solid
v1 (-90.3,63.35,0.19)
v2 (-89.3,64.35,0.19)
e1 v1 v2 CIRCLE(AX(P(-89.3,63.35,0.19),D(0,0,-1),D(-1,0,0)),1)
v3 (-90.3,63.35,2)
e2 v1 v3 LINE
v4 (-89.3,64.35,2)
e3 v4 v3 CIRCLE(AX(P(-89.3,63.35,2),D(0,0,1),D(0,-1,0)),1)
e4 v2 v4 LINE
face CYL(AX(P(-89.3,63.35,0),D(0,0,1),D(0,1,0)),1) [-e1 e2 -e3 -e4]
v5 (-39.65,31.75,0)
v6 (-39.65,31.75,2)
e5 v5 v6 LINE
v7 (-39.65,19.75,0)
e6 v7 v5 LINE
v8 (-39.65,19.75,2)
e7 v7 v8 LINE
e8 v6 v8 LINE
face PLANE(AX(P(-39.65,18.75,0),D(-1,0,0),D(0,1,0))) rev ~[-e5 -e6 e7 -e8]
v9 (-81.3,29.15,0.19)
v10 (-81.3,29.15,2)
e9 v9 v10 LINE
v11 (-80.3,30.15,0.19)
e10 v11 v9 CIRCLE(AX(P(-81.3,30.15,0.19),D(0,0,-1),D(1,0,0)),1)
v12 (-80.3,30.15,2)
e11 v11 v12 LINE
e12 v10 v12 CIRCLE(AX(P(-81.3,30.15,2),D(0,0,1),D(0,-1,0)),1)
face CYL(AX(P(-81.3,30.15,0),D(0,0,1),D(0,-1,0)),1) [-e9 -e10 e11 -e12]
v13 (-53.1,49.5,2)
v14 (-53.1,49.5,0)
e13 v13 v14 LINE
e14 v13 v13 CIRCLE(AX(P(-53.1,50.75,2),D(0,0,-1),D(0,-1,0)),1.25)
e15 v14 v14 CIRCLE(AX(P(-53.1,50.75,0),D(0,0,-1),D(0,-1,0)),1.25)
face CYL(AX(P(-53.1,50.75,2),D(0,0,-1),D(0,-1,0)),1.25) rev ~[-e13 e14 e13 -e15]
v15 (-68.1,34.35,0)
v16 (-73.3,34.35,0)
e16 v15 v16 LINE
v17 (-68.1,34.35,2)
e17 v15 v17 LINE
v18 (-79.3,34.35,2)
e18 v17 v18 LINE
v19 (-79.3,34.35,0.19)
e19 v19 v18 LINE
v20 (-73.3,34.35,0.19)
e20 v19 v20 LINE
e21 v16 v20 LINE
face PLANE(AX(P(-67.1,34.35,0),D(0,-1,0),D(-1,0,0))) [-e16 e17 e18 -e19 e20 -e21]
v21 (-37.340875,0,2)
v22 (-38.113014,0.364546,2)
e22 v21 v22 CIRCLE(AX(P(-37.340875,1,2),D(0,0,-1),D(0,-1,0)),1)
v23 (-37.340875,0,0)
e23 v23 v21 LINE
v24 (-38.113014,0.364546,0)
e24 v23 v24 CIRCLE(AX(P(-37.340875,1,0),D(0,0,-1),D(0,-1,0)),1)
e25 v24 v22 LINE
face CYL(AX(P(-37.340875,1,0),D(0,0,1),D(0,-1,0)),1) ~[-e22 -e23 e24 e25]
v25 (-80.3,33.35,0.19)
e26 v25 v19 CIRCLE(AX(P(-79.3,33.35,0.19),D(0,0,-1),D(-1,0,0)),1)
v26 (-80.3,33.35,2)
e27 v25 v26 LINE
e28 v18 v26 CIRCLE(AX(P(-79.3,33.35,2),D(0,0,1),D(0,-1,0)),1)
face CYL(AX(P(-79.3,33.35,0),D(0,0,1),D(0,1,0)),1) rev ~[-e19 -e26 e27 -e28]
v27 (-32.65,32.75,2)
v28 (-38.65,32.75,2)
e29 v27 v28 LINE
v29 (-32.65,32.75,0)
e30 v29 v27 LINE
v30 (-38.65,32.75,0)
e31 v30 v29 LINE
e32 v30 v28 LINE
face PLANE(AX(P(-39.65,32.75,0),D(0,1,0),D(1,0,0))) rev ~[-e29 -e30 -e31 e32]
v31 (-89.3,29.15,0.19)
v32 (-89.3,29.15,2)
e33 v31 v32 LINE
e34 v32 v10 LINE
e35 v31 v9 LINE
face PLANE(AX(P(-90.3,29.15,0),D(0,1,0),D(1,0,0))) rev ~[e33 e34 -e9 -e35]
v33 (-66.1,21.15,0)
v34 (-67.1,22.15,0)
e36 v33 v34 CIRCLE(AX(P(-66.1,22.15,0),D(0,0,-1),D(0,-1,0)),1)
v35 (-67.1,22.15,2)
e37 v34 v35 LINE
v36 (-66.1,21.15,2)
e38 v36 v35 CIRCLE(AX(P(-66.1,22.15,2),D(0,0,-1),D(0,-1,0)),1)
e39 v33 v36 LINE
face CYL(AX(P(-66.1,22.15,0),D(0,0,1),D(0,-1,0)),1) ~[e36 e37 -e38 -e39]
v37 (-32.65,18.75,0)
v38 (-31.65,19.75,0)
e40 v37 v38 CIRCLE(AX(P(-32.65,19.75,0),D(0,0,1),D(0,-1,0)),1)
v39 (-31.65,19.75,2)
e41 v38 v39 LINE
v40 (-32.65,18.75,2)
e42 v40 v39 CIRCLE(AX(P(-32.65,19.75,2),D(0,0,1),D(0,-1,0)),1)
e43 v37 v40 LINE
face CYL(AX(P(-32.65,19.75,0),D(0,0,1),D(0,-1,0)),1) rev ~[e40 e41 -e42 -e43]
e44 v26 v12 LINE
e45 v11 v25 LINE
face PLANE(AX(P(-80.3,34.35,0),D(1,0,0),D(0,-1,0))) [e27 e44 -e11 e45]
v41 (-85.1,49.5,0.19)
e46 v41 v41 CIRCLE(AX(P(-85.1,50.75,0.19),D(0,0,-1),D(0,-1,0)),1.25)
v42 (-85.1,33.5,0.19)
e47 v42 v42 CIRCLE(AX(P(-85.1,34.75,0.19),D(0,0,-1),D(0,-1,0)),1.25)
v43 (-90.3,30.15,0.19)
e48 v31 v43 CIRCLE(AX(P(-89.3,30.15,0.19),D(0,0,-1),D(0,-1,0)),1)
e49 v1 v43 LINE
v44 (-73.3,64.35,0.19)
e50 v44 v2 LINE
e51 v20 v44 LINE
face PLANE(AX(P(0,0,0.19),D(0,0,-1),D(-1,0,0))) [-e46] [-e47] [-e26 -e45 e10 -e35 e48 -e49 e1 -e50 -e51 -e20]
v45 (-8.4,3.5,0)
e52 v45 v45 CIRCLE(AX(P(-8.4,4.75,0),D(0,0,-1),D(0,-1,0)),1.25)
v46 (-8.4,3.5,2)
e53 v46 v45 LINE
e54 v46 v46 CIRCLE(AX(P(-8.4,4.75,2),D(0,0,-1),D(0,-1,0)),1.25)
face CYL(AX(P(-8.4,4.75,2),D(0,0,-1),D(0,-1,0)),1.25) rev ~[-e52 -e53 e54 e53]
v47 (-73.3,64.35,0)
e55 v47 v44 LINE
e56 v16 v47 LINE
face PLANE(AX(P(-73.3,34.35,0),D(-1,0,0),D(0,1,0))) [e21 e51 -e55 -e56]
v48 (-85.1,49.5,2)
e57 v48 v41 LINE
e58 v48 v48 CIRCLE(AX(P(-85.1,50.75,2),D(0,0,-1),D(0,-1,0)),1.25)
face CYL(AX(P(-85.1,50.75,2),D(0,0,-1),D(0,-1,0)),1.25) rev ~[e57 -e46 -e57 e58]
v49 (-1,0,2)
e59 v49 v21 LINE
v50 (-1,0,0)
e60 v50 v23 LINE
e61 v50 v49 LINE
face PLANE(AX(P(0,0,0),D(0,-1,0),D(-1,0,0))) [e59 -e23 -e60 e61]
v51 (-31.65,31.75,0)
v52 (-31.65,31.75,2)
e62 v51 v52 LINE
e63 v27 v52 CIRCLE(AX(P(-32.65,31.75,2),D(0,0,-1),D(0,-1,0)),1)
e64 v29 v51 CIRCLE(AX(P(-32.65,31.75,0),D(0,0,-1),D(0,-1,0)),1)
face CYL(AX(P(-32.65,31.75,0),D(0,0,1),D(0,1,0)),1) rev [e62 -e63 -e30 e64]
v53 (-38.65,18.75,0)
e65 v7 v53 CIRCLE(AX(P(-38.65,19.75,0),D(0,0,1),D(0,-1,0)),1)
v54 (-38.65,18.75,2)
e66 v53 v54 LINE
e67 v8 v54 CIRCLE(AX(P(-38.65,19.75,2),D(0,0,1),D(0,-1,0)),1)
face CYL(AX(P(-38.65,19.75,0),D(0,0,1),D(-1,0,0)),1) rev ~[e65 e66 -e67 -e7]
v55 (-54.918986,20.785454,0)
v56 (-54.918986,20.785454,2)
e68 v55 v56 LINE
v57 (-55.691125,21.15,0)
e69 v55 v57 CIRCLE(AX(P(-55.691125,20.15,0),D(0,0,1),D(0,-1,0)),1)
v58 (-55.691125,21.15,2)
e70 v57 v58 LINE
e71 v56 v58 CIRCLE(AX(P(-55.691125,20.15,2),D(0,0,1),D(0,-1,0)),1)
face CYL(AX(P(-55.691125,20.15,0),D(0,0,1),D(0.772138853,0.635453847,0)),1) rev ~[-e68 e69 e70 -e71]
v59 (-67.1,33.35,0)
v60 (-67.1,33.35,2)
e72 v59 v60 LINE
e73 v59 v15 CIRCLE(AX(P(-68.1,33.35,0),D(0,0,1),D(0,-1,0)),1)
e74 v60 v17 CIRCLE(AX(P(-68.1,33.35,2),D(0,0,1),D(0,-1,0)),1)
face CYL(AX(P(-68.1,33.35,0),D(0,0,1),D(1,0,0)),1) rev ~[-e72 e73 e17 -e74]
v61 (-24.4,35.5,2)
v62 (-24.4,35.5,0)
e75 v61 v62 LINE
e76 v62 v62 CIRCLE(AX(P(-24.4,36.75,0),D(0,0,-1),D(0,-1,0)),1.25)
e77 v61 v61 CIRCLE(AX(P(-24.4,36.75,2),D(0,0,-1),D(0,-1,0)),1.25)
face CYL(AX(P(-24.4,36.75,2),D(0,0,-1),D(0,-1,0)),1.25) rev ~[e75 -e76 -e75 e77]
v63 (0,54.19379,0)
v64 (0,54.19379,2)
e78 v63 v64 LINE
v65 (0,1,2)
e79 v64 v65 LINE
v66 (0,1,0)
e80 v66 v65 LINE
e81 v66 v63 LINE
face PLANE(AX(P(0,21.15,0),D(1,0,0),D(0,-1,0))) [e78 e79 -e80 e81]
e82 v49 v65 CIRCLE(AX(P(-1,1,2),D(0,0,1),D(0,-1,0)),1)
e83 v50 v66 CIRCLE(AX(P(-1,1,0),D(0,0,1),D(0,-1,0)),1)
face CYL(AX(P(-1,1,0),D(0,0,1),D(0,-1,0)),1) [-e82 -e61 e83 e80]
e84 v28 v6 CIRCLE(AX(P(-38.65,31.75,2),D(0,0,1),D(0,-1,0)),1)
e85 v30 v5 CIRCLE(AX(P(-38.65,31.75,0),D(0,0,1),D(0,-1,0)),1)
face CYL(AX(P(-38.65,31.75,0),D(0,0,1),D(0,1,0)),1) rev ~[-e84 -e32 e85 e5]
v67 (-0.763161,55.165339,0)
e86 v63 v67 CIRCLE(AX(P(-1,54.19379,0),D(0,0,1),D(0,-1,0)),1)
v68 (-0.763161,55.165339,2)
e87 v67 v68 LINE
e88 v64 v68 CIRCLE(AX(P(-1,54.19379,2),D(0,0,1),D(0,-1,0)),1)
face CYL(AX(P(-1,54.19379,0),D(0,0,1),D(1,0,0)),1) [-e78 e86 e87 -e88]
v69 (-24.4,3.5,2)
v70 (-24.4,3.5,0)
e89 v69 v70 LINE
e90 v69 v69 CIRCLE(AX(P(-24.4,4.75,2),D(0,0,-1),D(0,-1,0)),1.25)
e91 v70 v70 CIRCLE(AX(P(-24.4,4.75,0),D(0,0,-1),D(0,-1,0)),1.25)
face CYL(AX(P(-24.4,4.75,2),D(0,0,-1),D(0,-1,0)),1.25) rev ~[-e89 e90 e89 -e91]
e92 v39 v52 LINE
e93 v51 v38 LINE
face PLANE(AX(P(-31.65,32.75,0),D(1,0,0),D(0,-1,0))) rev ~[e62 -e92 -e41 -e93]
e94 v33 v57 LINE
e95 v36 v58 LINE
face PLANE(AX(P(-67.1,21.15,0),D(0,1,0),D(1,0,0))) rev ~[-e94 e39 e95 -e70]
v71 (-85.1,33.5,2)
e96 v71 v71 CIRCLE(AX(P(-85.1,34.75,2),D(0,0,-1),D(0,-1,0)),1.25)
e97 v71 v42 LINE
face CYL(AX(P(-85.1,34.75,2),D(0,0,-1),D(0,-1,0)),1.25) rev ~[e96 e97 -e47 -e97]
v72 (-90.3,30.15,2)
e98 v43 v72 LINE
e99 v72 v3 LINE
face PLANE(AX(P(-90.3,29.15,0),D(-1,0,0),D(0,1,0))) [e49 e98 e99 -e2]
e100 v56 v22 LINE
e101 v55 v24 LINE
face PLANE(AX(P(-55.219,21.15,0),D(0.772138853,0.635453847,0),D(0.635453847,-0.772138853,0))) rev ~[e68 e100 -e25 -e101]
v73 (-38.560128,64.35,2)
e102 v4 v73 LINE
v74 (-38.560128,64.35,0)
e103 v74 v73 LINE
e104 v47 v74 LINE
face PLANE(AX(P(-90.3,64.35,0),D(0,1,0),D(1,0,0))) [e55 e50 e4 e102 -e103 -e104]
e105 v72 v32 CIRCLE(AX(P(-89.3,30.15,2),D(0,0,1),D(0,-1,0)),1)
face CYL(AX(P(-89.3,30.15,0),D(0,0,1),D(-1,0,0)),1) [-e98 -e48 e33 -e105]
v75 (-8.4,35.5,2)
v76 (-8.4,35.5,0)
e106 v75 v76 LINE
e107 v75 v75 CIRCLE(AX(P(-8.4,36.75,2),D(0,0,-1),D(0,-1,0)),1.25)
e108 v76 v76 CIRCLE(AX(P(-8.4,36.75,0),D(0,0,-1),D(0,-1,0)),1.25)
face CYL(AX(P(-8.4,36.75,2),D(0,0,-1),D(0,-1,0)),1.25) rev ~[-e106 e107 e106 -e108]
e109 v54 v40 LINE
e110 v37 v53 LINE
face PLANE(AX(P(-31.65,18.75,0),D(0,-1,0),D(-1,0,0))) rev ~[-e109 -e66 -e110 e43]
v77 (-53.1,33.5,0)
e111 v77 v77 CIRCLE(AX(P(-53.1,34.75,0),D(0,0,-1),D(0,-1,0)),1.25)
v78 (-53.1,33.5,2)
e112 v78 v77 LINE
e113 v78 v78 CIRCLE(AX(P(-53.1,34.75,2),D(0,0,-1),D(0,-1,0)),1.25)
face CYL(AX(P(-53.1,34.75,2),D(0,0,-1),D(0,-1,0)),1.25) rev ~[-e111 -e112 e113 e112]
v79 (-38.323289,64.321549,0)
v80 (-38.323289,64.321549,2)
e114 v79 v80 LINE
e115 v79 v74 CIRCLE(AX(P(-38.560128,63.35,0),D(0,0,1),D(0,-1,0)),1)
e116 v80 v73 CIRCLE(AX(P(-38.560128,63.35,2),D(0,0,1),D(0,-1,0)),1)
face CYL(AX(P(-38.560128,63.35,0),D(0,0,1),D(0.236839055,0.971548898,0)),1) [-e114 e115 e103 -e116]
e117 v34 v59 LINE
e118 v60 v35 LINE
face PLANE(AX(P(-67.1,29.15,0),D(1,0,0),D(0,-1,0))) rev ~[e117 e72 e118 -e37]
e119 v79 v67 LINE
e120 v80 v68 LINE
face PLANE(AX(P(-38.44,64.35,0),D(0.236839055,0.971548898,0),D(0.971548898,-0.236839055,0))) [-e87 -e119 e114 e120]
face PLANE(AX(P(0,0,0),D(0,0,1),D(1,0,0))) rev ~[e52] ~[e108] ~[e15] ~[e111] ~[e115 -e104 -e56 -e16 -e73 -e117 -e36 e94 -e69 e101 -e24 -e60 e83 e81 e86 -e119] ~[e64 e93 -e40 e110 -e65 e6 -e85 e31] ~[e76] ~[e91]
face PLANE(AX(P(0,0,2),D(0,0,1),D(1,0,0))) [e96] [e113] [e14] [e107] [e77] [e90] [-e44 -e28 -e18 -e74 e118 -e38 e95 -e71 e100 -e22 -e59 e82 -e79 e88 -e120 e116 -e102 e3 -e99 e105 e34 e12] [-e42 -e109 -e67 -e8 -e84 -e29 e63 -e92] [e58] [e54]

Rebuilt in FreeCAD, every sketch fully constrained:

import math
import FreeCAD as App
import Part
import Sketcher
Q = App.Units.Quantity


def edges_at(feature, points):
    """Names of the edges that pass closest to the given points."""
    edges = feature.Shape.Edges
    near = lambda p: min(range(len(edges)), key=lambda i: edges[i].distToShape(Part.Vertex(*p))[0])
    return sorted({f"Edge{near(p) + 1}" for p in points})

doc = App.newDocument("Part")
body = doc.addObject("PartDesign::Body", "Body")

sketch1 = body.newObject("Sketcher::SketchObject", "Sketch")
sketch1.AttachmentSupport = (doc.getObject("XY_Plane"), [""])
sketch1.MapMode = "FlatFace"
sketch1.addGeometry([
    Part.LineSegment(App.Vector(-38, 0, 0), App.Vector(0, 0, 0)),
    Part.LineSegment(App.Vector(0, 0, 0), App.Vector(0, 55, 0)),
    Part.LineSegment(App.Vector(0, 55, 0), App.Vector(-38, 64, 0)),
    Part.LineSegment(App.Vector(-38, 64, 0), App.Vector(-90, 64, 0)),
    Part.LineSegment(App.Vector(-90, 64, 0), App.Vector(-90, 29, 0)),
    Part.LineSegment(App.Vector(-90, 29, 0), App.Vector(-80, 29, 0)),
    Part.LineSegment(App.Vector(-80, 29, 0), App.Vector(-80, 34, 0)),
    Part.LineSegment(App.Vector(-80, 34, 0), App.Vector(-67, 34, 0)),
    Part.LineSegment(App.Vector(-67, 34, 0), App.Vector(-67, 21, 0)),
    Part.LineSegment(App.Vector(-67, 21, 0), App.Vector(-55, 21, 0)),
    Part.LineSegment(App.Vector(-55, 21, 0), App.Vector(-38, 0, 0)),
], False)
sketch1.addConstraint([
    Sketcher.Constraint("Coincident", 0, 2, 1, 1),
    Sketcher.Constraint("Coincident", 1, 2, 2, 1),
    Sketcher.Constraint("Coincident", 2, 2, 3, 1),
    Sketcher.Constraint("Coincident", 3, 2, 4, 1),
    Sketcher.Constraint("Coincident", 4, 2, 5, 1),
    Sketcher.Constraint("Coincident", 5, 2, 6, 1),
    Sketcher.Constraint("Coincident", 6, 2, 7, 1),
    Sketcher.Constraint("Coincident", 7, 2, 8, 1),
    Sketcher.Constraint("Coincident", 8, 2, 9, 1),
    Sketcher.Constraint("Coincident", 9, 2, 10, 1),
    Sketcher.Constraint("Coincident", 10, 2, 0, 1),
    Sketcher.Constraint("Horizontal", 0),
    Sketcher.Constraint("Vertical", 1),
    Sketcher.Constraint("Horizontal", 3),
    Sketcher.Constraint("Vertical", 4),
    Sketcher.Constraint("Horizontal", 5),
    Sketcher.Constraint("Vertical", 6),
    Sketcher.Constraint("Horizontal", 7),
    Sketcher.Constraint("Vertical", 8),
    Sketcher.Constraint("Horizontal", 9),
    Sketcher.Constraint("Coincident", 0, 2, -1, 1),
    Sketcher.Constraint("Equal", 7, 8),
    Sketcher.Constraint("DistanceX", 5, 1, 5, 2, 10.0),
    Sketcher.Constraint("DistanceX", 7, 1, 7, 2, 13.2),
    Sketcher.Constraint("DistanceY", 4, 2, 4, 1, 35.2),
    Sketcher.Constraint("DistanceY", 6, 1, 6, 2, 5.2),
    Sketcher.Constraint("Angle", 2, Q("166.3 deg")),
    Sketcher.Constraint("DistanceX", 3, 2, 3, 1, 51.86),
    Sketcher.Constraint("DistanceX", 3, 2, -1, 1, 90.3),
    Sketcher.Constraint("DistanceX", 0, 1, 0, 2, 37.813),
    Sketcher.Constraint("DistanceY", -1, 1, 2, 2, 64.35),
    Sketcher.Constraint("DistanceX", 9, 2, -1, 1, 55.219),
])
pad1 = body.newObject("PartDesign::Pad", "Pad")
pad1.Profile = sketch1
pad1.Length = 2

sketch2 = body.newObject("Sketcher::SketchObject", "Sketch001")
sketch2.AttachmentSupport = (doc.getObject("XY_Plane"), [""])
sketch2.MapMode = "FlatFace"
sketch2.AttachmentOffset = App.Placement(App.Vector(0, 0, 2), App.Rotation())
sketch2.addGeometry([
    Part.Circle(App.Vector(-85.1, 50.8, 0), App.Vector(0, 0, 1), 1.2),
    Part.Circle(App.Vector(-85.1, 34.8, 0), App.Vector(0, 0, 1), 1.2),
    Part.Circle(App.Vector(-53.1, 34.8, 0), App.Vector(0, 0, 1), 1.2),
    Part.Circle(App.Vector(-53.1, 50.8, 0), App.Vector(0, 0, 1), 1.2),
    Part.Circle(App.Vector(-24.4, 4.8, 0), App.Vector(0, 0, 1), 1.2),
    Part.Circle(App.Vector(-8.4, 4.8, 0), App.Vector(0, 0, 1), 1.2),
    Part.Circle(App.Vector(-8.4, 36.8, 0), App.Vector(0, 0, 1), 1.2),
    Part.Circle(App.Vector(-24.4, 36.8, 0), App.Vector(0, 0, 1), 1.2),
], False)
sketch2.addConstraint([
    Sketcher.Constraint("Equal", 0, 1),
    Sketcher.Constraint("Equal", 1, 2),
    Sketcher.Constraint("Equal", 2, 3),
    Sketcher.Constraint("Equal", 3, 4),
    Sketcher.Constraint("Equal", 4, 5),
    Sketcher.Constraint("Equal", 5, 6),
    Sketcher.Constraint("Equal", 6, 7),
    Sketcher.Constraint("Horizontal", 1, 3, 2, 3),
    Sketcher.Constraint("Horizontal", 0, 3, 3, 3),
    Sketcher.Constraint("Horizontal", 4, 3, 5, 3),
    Sketcher.Constraint("Horizontal", 6, 3, 7, 3),
    Sketcher.Constraint("Vertical", 0, 3, 1, 3),
    Sketcher.Constraint("Vertical", 2, 3, 3, 3),
    Sketcher.Constraint("Vertical", 5, 3, 6, 3),
    Sketcher.Constraint("Vertical", 4, 3, 7, 3),
    Sketcher.Constraint("Diameter", 0, 2.5),
    Sketcher.Constraint("DistanceY", 1, 3, 0, 3, 16.0),
    Sketcher.Constraint("DistanceX", 1, 3, 2, 3, 32.0),
    Sketcher.Constraint("DistanceY", 4, 3, 2, 3, 30.0),
    Sketcher.Constraint("DistanceX", 4, 3, 5, 3, 16.0),
    Sketcher.Constraint("DistanceY", 5, 3, 6, 3, 32.0),
    Sketcher.Constraint("DistanceX", 0, 3, -1, 1, 85.1),
    Sketcher.Constraint("DistanceX", 4, 3, -1, 1, 24.4),
    Sketcher.Constraint("DistanceY", -1, 1, 0, 3, 50.75),
])
doc.recompute()
hole = body.newObject("PartDesign::Hole", "Hole")
hole.Profile = sketch2
hole.ThreadType = "None"
hole.Diameter = 2.5
hole.DepthType = "ThroughAll"
doc.recompute()

fillet = body.newObject("PartDesign::Fillet", "Fillet")
fillet.Base = (hole, edges_at(hole, [
    (0, 0, 1),
    (0, 54.979, 1),
    (-90.3, 64.35, 1),
    (-90.3, 29.15, 1),
    (-80.3, 29.15, 1),
    (-80.3, 34.35, 1),
    (-67.1, 34.35, 1),
    (-67.1, 21.15, 1),
    (-55.219, 21.15, 1),
    (-37.813, 0, 1),
    (-38.44, 64.35, 1),
]))
fillet.Radius = 1

sketch3 = body.newObject("Sketcher::SketchObject", "Sketch002")
sketch3.AttachmentSupport = (doc.getObject("XY_Plane"), [""])
sketch3.MapMode = "FlatFace"
sketch3.addGeometry([
    Part.LineSegment(App.Vector(-32, 33, 0), App.Vector(-32, 19, 0)),
    Part.LineSegment(App.Vector(-32, 19, 0), App.Vector(-40, 19, 0)),
    Part.LineSegment(App.Vector(-40, 19, 0), App.Vector(-40, 33, 0)),
    Part.LineSegment(App.Vector(-40, 33, 0), App.Vector(-32, 33, 0)),
], False)
sketch3.addConstraint([
    Sketcher.Constraint("Coincident", 0, 2, 1, 1),
    Sketcher.Constraint("Coincident", 1, 2, 2, 1),
    Sketcher.Constraint("Coincident", 2, 2, 3, 1),
    Sketcher.Constraint("Coincident", 3, 2, 0, 1),
    Sketcher.Constraint("Vertical", 0),
    Sketcher.Constraint("Horizontal", 1),
    Sketcher.Constraint("Vertical", 2),
    Sketcher.Constraint("Horizontal", 3),
    Sketcher.Constraint("DistanceX", 1, 2, 1, 1, 8.0),
    Sketcher.Constraint("DistanceY", 0, 2, 0, 1, 14.0),
    Sketcher.Constraint("DistanceX", 0, 2, -1, 1, 31.65),
    Sketcher.Constraint("DistanceY", -1, 1, 0, 2, 18.75),
])
pocket1 = body.newObject("PartDesign::Pocket", "Pocket")
pocket1.Profile = sketch3
pocket1.Length = 10
pocket1.Reversed = True
doc.recompute()

fillet2 = body.newObject("PartDesign::Fillet", "Fillet001")
fillet2.Base = (pocket1, edges_at(pocket1, [
    (-31.65, 18.75, 1),
    (-31.65, 32.75, 1),
    (-39.65, 32.75, 1),
    (-39.65, 18.75, 1),
]))
fillet2.Radius = 1

sketch4 = body.newObject("Sketcher::SketchObject", "Sketch003")
sketch4.AttachmentSupport = (doc.getObject("XY_Plane"), [""])
sketch4.MapMode = "FlatFace"
sketch4.addGeometry([
    Part.LineSegment(App.Vector(-73.3, 34.4, 0), App.Vector(-79.3, 34.4, 0)),
    Part.ArcOfCircle(Part.Circle(App.Vector(-79.3, 33.4, 0), App.Vector(0, 0, 1), 1), math.radians(90), math.radians(180)),
    Part.LineSegment(App.Vector(-80.3, 33.4, 0), App.Vector(-80.3, 30.1, 0)),
    Part.ArcOfCircle(Part.Circle(App.Vector(-81.3, 30.1, 0), App.Vector(0, 0, 1), 1), math.radians(-90), math.radians(0)),
    Part.LineSegment(App.Vector(-81.3, 29.1, 0), App.Vector(-89.3, 29.1, 0)),
    Part.ArcOfCircle(Part.Circle(App.Vector(-89.3, 30.1, 0), App.Vector(0, 0, 1), 1), math.radians(180), math.radians(270)),
    Part.LineSegment(App.Vector(-90.3, 30.1, 0), App.Vector(-90.3, 63.4, 0)),
    Part.ArcOfCircle(Part.Circle(App.Vector(-89.3, 63.4, 0), App.Vector(0, 0, 1), 1), math.radians(90), math.radians(180)),
    Part.LineSegment(App.Vector(-89.3, 64.3, 0), App.Vector(-73.3, 64.3, 0)),
    Part.LineSegment(App.Vector(-73.3, 64.3, 0), App.Vector(-73.3, 34.4, 0)),
], False)
sketch4.addConstraint([
    Sketcher.Constraint("Tangent", 0, 2, 1, 1),
    Sketcher.Constraint("Tangent", 1, 2, 2, 1),
    Sketcher.Constraint("Tangent", 2, 2, 3, 2),
    Sketcher.Constraint("Tangent", 3, 1, 4, 1),
    Sketcher.Constraint("Tangent", 4, 2, 5, 2),
    Sketcher.Constraint("Tangent", 5, 1, 6, 1),
    Sketcher.Constraint("Tangent", 6, 2, 7, 2),
    Sketcher.Constraint("Tangent", 7, 1, 8, 1),
    Sketcher.Constraint("Coincident", 8, 2, 9, 1),
    Sketcher.Constraint("Coincident", 9, 2, 0, 1),
    Sketcher.Constraint("Horizontal", 0),
    Sketcher.Constraint("Vertical", 2),
    Sketcher.Constraint("Horizontal", 4),
    Sketcher.Constraint("Vertical", 6),
    Sketcher.Constraint("Horizontal", 8),
    Sketcher.Constraint("Vertical", 9),
    Sketcher.Constraint("Equal", 1, 3),
    Sketcher.Constraint("Equal", 3, 5),
    Sketcher.Constraint("Equal", 5, 7),
    Sketcher.Constraint("Radius", 1, 1.0),
    Sketcher.Constraint("DistanceX", 6, 2, 8, 2, 17.0),
    Sketcher.Constraint("DistanceX", 0, 2, 0, 1, 6.0),
    Sketcher.Constraint("DistanceY", 9, 2, 9, 1, 30.0),
    Sketcher.Constraint("DistanceY", 2, 2, 2, 1, 3.2),
    Sketcher.Constraint("DistanceX", 1, 3, -1, 1, 79.3),
    Sketcher.Constraint("DistanceY", -1, 1, 1, 3, 33.35),
])
pocket2 = body.newObject("PartDesign::Pocket", "Pocket001")
pocket2.Profile = sketch4
pocket2.Length = 0.19
pocket2.Reversed = True

doc.recompute()
